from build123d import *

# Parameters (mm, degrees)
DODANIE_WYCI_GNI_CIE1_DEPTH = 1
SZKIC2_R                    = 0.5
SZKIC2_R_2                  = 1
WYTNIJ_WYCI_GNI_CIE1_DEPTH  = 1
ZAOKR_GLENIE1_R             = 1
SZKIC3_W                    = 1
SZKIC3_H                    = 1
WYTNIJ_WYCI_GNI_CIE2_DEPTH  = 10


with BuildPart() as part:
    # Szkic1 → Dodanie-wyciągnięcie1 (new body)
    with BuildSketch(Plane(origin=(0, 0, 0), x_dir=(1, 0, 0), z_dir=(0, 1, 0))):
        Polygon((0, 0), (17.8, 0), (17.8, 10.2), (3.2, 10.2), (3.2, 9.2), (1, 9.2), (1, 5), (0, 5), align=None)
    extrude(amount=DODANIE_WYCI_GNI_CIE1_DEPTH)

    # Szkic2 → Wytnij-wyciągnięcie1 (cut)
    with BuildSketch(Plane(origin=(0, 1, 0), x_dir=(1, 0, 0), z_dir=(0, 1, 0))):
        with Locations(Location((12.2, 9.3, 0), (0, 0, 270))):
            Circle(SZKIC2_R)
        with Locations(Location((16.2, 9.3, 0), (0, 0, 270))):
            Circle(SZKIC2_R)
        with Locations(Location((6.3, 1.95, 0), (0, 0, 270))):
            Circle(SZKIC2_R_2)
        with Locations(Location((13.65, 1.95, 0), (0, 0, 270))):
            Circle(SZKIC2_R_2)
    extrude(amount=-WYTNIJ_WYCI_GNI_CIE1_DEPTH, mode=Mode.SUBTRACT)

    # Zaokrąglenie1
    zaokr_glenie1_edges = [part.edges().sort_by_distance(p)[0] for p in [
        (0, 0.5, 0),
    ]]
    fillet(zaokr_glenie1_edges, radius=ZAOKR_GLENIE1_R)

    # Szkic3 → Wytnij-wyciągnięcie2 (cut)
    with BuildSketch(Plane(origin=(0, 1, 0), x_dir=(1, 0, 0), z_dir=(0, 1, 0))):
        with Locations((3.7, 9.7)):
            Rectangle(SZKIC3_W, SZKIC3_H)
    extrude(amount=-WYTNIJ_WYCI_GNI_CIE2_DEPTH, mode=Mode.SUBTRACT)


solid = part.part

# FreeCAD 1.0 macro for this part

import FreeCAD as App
import Part
import Sketcher

V = App.Vector
Q = App.Units.Quantity


def edges_at(feature, points):
    """Names of the edges that pass closest to the given points."""
    edges = feature.Shape.Edges
    near = lambda p: min(range(len(edges)), key=lambda i: edges[i].distToShape(Part.Vertex(*p))[0])
    return sorted({f"Edge{near(p) + 1}" for p in points})


def add_polygon(sketch, points):
    """Adds a closed chain of lines whose ends are joined by coincident constraints."""
    first, n = sketch.GeometryCount, len(points)
    for a, b in zip(points, points[1:] + points[:1]):
        sketch.addGeometry(Part.LineSegment(App.Vector(*a, 0), App.Vector(*b, 0)), False)
    for i in range(n):
        sketch.addConstraint(Sketcher.Constraint("Coincident", first + i, 2, first + (i + 1) % n, 1))

doc = App.newDocument("Part")
body = doc.addObject("PartDesign::Body", "Body")

# Sketch on XZ plane
sketch1 = body.newObject("Sketcher::SketchObject", "Sketch")
sketch1.AttachmentSupport = (doc.getObject("XZ_Plane"), [""])
sketch1.MapMode = "FlatFace"
add_polygon(sketch1, [(0, 0), (17.8, 0), (17.8, -10.2), (3.2, -10.2), (3.2, -9.2), (1, -9.2), (1, -5), (0, -5)])  # lines 0-7
sketch1.addConstraint(Sketcher.Constraint("Horizontal", 0))
sketch1.addConstraint(Sketcher.Constraint("Vertical", 1))
sketch1.addConstraint(Sketcher.Constraint("Horizontal", 2))
sketch1.addConstraint(Sketcher.Constraint("Vertical", 3))
sketch1.addConstraint(Sketcher.Constraint("Horizontal", 4))
sketch1.addConstraint(Sketcher.Constraint("Vertical", 5))
sketch1.addConstraint(Sketcher.Constraint("Horizontal", 6))
sketch1.addConstraint(Sketcher.Constraint("Vertical", 7))
sketch1.addConstraint(Sketcher.Constraint("Coincident", 7, 2, -1, 1))
sketch1.addConstraint(Sketcher.Constraint("Equal", 6, 3))
sketch1.addConstraint(Sketcher.Constraint("DistanceX", 6, 2, 6, 1, Q("1 mm")))
sketch1.addConstraint(Sketcher.Constraint("DistanceY", 7, 1, 7, 2, Q("5 mm")))
sketch1.addConstraint(Sketcher.Constraint("DistanceX", 0, 1, 0, 2, Q("17.8 mm")))
sketch1.addConstraint(Sketcher.Constraint("DistanceX", 2, 2, 2, 1, Q("14.6 mm")))
sketch1.addConstraint(Sketcher.Constraint("DistanceY", 1, 2, 1, 1, Q("10.2 mm")))
pad1 = body.newObject("PartDesign::Pad", "Pad")
pad1.Profile = sketch1
pad1.Length = 1
pad1.Reversed = True

# Sketch on XZ plane
sketch2 = body.newObject("Sketcher::SketchObject", "Sketch001")
sketch2.AttachmentSupport = (doc.getObject("XZ_Plane"), [""])
sketch2.MapMode = "FlatFace"
sketch2.AttachmentOffset = App.Placement(V(0, 0, -1), App.Rotation())
sketch2.addGeometry(Part.Circle(V(12.2, -9.3, 0), V(0, 0, 1), 0.5), False)
sketch2.addGeometry(Part.Circle(V(16.2, -9.3, 0), V(0, 0, 1), 0.5), False)
sketch2.addGeometry(Part.Circle(V(6.3, -1.9, 0), V(0, 0, 1), 1), False)
sketch2.addGeometry(Part.Circle(V(13.7, -1.9, 0), V(0, 0, 1), 1), False)
sketch2.addConstraint(Sketcher.Constraint("Equal", 0, 1))
sketch2.addConstraint(Sketcher.Constraint("Equal", 2, 3))
sketch2.addConstraint(Sketcher.Constraint("Horizontal", 0, 3, 1, 3))
sketch2.addConstraint(Sketcher.Constraint("Horizontal", 2, 3, 3, 3))
sketch2.addConstraint(Sketcher.Constraint("Diameter", 0, Q("1 mm")))
sketch2.addConstraint(Sketcher.Constraint("Diameter", 2, Q("2 mm")))
sketch2.addConstraint(Sketcher.Constraint("DistanceX", 0, 3, 1, 3, Q("4 mm")))
sketch2.addConstraint(Sketcher.Constraint("DistanceX", -1, 1, 0, 3, Q("12.2 mm")))
sketch2.addConstraint(Sketcher.Constraint("DistanceY", 0, 3, -1, 1, Q("9.3 mm")))
sketch2.addConstraint(Sketcher.Constraint("DistanceX", -1, 1, 2, 3, Q("6.3 mm")))
sketch2.addConstraint(Sketcher.Constraint("DistanceY", 2, 3, -1, 1, Q("1.95 mm")))
sketch2.addConstraint(Sketcher.Constraint("DistanceX", -1, 1, 3, 3, Q("13.65 mm")))
pocket1 = body.newObject("PartDesign::Pocket", "Pocket")
pocket1.Profile = sketch2
pocket1.Length = 1
pocket1.Reversed = True
doc.recompute()

fillet = body.newObject("PartDesign::Fillet", "Fillet")
fillet.Base = (pocket1, edges_at(pocket1, [(0, 0.5, 0)]))
fillet.Radius = 1

# Sketch on XZ plane
sketch3 = body.newObject("Sketcher::SketchObject", "Sketch002")
sketch3.AttachmentSupport = (doc.getObject("XZ_Plane"), [""])
sketch3.MapMode = "FlatFace"
sketch3.AttachmentOffset = App.Placement(V(0, 0, -1), App.Rotation())
add_polygon(sketch3, [(3.2, -10.2), (3.2, -9.2), (4.2, -9.2), (4.2, -10.2)])  # lines 0-3
sketch3.addConstraint(Sketcher.Constraint("Vertical", 0))
sketch3.addConstraint(Sketcher.Constraint("Horizontal", 1))
sketch3.addConstraint(Sketcher.Constraint("Vertical", 2))
sketch3.addConstraint(Sketcher.Constraint("Horizontal", 3))
sketch3.addConstraint(Sketcher.Constraint("Equal", 3, 0))
sketch3.addConstraint(Sketcher.Constraint("DistanceX", 1, 1, 1, 2, Q("1 mm")))
sketch3.addConstraint(Sketcher.Constraint("DistanceX", -1, 1, 0, 2, Q("3.2 mm")))
sketch3.addConstraint(Sketcher.Constraint("DistanceY", 0, 2, -1, 1, Q("9.2 mm")))
pocket2 = body.newObject("PartDesign::Pocket", "Pocket001")
pocket2.Profile = sketch3
pocket2.Length = 10
pocket2.Reversed = True

doc.recompute()
